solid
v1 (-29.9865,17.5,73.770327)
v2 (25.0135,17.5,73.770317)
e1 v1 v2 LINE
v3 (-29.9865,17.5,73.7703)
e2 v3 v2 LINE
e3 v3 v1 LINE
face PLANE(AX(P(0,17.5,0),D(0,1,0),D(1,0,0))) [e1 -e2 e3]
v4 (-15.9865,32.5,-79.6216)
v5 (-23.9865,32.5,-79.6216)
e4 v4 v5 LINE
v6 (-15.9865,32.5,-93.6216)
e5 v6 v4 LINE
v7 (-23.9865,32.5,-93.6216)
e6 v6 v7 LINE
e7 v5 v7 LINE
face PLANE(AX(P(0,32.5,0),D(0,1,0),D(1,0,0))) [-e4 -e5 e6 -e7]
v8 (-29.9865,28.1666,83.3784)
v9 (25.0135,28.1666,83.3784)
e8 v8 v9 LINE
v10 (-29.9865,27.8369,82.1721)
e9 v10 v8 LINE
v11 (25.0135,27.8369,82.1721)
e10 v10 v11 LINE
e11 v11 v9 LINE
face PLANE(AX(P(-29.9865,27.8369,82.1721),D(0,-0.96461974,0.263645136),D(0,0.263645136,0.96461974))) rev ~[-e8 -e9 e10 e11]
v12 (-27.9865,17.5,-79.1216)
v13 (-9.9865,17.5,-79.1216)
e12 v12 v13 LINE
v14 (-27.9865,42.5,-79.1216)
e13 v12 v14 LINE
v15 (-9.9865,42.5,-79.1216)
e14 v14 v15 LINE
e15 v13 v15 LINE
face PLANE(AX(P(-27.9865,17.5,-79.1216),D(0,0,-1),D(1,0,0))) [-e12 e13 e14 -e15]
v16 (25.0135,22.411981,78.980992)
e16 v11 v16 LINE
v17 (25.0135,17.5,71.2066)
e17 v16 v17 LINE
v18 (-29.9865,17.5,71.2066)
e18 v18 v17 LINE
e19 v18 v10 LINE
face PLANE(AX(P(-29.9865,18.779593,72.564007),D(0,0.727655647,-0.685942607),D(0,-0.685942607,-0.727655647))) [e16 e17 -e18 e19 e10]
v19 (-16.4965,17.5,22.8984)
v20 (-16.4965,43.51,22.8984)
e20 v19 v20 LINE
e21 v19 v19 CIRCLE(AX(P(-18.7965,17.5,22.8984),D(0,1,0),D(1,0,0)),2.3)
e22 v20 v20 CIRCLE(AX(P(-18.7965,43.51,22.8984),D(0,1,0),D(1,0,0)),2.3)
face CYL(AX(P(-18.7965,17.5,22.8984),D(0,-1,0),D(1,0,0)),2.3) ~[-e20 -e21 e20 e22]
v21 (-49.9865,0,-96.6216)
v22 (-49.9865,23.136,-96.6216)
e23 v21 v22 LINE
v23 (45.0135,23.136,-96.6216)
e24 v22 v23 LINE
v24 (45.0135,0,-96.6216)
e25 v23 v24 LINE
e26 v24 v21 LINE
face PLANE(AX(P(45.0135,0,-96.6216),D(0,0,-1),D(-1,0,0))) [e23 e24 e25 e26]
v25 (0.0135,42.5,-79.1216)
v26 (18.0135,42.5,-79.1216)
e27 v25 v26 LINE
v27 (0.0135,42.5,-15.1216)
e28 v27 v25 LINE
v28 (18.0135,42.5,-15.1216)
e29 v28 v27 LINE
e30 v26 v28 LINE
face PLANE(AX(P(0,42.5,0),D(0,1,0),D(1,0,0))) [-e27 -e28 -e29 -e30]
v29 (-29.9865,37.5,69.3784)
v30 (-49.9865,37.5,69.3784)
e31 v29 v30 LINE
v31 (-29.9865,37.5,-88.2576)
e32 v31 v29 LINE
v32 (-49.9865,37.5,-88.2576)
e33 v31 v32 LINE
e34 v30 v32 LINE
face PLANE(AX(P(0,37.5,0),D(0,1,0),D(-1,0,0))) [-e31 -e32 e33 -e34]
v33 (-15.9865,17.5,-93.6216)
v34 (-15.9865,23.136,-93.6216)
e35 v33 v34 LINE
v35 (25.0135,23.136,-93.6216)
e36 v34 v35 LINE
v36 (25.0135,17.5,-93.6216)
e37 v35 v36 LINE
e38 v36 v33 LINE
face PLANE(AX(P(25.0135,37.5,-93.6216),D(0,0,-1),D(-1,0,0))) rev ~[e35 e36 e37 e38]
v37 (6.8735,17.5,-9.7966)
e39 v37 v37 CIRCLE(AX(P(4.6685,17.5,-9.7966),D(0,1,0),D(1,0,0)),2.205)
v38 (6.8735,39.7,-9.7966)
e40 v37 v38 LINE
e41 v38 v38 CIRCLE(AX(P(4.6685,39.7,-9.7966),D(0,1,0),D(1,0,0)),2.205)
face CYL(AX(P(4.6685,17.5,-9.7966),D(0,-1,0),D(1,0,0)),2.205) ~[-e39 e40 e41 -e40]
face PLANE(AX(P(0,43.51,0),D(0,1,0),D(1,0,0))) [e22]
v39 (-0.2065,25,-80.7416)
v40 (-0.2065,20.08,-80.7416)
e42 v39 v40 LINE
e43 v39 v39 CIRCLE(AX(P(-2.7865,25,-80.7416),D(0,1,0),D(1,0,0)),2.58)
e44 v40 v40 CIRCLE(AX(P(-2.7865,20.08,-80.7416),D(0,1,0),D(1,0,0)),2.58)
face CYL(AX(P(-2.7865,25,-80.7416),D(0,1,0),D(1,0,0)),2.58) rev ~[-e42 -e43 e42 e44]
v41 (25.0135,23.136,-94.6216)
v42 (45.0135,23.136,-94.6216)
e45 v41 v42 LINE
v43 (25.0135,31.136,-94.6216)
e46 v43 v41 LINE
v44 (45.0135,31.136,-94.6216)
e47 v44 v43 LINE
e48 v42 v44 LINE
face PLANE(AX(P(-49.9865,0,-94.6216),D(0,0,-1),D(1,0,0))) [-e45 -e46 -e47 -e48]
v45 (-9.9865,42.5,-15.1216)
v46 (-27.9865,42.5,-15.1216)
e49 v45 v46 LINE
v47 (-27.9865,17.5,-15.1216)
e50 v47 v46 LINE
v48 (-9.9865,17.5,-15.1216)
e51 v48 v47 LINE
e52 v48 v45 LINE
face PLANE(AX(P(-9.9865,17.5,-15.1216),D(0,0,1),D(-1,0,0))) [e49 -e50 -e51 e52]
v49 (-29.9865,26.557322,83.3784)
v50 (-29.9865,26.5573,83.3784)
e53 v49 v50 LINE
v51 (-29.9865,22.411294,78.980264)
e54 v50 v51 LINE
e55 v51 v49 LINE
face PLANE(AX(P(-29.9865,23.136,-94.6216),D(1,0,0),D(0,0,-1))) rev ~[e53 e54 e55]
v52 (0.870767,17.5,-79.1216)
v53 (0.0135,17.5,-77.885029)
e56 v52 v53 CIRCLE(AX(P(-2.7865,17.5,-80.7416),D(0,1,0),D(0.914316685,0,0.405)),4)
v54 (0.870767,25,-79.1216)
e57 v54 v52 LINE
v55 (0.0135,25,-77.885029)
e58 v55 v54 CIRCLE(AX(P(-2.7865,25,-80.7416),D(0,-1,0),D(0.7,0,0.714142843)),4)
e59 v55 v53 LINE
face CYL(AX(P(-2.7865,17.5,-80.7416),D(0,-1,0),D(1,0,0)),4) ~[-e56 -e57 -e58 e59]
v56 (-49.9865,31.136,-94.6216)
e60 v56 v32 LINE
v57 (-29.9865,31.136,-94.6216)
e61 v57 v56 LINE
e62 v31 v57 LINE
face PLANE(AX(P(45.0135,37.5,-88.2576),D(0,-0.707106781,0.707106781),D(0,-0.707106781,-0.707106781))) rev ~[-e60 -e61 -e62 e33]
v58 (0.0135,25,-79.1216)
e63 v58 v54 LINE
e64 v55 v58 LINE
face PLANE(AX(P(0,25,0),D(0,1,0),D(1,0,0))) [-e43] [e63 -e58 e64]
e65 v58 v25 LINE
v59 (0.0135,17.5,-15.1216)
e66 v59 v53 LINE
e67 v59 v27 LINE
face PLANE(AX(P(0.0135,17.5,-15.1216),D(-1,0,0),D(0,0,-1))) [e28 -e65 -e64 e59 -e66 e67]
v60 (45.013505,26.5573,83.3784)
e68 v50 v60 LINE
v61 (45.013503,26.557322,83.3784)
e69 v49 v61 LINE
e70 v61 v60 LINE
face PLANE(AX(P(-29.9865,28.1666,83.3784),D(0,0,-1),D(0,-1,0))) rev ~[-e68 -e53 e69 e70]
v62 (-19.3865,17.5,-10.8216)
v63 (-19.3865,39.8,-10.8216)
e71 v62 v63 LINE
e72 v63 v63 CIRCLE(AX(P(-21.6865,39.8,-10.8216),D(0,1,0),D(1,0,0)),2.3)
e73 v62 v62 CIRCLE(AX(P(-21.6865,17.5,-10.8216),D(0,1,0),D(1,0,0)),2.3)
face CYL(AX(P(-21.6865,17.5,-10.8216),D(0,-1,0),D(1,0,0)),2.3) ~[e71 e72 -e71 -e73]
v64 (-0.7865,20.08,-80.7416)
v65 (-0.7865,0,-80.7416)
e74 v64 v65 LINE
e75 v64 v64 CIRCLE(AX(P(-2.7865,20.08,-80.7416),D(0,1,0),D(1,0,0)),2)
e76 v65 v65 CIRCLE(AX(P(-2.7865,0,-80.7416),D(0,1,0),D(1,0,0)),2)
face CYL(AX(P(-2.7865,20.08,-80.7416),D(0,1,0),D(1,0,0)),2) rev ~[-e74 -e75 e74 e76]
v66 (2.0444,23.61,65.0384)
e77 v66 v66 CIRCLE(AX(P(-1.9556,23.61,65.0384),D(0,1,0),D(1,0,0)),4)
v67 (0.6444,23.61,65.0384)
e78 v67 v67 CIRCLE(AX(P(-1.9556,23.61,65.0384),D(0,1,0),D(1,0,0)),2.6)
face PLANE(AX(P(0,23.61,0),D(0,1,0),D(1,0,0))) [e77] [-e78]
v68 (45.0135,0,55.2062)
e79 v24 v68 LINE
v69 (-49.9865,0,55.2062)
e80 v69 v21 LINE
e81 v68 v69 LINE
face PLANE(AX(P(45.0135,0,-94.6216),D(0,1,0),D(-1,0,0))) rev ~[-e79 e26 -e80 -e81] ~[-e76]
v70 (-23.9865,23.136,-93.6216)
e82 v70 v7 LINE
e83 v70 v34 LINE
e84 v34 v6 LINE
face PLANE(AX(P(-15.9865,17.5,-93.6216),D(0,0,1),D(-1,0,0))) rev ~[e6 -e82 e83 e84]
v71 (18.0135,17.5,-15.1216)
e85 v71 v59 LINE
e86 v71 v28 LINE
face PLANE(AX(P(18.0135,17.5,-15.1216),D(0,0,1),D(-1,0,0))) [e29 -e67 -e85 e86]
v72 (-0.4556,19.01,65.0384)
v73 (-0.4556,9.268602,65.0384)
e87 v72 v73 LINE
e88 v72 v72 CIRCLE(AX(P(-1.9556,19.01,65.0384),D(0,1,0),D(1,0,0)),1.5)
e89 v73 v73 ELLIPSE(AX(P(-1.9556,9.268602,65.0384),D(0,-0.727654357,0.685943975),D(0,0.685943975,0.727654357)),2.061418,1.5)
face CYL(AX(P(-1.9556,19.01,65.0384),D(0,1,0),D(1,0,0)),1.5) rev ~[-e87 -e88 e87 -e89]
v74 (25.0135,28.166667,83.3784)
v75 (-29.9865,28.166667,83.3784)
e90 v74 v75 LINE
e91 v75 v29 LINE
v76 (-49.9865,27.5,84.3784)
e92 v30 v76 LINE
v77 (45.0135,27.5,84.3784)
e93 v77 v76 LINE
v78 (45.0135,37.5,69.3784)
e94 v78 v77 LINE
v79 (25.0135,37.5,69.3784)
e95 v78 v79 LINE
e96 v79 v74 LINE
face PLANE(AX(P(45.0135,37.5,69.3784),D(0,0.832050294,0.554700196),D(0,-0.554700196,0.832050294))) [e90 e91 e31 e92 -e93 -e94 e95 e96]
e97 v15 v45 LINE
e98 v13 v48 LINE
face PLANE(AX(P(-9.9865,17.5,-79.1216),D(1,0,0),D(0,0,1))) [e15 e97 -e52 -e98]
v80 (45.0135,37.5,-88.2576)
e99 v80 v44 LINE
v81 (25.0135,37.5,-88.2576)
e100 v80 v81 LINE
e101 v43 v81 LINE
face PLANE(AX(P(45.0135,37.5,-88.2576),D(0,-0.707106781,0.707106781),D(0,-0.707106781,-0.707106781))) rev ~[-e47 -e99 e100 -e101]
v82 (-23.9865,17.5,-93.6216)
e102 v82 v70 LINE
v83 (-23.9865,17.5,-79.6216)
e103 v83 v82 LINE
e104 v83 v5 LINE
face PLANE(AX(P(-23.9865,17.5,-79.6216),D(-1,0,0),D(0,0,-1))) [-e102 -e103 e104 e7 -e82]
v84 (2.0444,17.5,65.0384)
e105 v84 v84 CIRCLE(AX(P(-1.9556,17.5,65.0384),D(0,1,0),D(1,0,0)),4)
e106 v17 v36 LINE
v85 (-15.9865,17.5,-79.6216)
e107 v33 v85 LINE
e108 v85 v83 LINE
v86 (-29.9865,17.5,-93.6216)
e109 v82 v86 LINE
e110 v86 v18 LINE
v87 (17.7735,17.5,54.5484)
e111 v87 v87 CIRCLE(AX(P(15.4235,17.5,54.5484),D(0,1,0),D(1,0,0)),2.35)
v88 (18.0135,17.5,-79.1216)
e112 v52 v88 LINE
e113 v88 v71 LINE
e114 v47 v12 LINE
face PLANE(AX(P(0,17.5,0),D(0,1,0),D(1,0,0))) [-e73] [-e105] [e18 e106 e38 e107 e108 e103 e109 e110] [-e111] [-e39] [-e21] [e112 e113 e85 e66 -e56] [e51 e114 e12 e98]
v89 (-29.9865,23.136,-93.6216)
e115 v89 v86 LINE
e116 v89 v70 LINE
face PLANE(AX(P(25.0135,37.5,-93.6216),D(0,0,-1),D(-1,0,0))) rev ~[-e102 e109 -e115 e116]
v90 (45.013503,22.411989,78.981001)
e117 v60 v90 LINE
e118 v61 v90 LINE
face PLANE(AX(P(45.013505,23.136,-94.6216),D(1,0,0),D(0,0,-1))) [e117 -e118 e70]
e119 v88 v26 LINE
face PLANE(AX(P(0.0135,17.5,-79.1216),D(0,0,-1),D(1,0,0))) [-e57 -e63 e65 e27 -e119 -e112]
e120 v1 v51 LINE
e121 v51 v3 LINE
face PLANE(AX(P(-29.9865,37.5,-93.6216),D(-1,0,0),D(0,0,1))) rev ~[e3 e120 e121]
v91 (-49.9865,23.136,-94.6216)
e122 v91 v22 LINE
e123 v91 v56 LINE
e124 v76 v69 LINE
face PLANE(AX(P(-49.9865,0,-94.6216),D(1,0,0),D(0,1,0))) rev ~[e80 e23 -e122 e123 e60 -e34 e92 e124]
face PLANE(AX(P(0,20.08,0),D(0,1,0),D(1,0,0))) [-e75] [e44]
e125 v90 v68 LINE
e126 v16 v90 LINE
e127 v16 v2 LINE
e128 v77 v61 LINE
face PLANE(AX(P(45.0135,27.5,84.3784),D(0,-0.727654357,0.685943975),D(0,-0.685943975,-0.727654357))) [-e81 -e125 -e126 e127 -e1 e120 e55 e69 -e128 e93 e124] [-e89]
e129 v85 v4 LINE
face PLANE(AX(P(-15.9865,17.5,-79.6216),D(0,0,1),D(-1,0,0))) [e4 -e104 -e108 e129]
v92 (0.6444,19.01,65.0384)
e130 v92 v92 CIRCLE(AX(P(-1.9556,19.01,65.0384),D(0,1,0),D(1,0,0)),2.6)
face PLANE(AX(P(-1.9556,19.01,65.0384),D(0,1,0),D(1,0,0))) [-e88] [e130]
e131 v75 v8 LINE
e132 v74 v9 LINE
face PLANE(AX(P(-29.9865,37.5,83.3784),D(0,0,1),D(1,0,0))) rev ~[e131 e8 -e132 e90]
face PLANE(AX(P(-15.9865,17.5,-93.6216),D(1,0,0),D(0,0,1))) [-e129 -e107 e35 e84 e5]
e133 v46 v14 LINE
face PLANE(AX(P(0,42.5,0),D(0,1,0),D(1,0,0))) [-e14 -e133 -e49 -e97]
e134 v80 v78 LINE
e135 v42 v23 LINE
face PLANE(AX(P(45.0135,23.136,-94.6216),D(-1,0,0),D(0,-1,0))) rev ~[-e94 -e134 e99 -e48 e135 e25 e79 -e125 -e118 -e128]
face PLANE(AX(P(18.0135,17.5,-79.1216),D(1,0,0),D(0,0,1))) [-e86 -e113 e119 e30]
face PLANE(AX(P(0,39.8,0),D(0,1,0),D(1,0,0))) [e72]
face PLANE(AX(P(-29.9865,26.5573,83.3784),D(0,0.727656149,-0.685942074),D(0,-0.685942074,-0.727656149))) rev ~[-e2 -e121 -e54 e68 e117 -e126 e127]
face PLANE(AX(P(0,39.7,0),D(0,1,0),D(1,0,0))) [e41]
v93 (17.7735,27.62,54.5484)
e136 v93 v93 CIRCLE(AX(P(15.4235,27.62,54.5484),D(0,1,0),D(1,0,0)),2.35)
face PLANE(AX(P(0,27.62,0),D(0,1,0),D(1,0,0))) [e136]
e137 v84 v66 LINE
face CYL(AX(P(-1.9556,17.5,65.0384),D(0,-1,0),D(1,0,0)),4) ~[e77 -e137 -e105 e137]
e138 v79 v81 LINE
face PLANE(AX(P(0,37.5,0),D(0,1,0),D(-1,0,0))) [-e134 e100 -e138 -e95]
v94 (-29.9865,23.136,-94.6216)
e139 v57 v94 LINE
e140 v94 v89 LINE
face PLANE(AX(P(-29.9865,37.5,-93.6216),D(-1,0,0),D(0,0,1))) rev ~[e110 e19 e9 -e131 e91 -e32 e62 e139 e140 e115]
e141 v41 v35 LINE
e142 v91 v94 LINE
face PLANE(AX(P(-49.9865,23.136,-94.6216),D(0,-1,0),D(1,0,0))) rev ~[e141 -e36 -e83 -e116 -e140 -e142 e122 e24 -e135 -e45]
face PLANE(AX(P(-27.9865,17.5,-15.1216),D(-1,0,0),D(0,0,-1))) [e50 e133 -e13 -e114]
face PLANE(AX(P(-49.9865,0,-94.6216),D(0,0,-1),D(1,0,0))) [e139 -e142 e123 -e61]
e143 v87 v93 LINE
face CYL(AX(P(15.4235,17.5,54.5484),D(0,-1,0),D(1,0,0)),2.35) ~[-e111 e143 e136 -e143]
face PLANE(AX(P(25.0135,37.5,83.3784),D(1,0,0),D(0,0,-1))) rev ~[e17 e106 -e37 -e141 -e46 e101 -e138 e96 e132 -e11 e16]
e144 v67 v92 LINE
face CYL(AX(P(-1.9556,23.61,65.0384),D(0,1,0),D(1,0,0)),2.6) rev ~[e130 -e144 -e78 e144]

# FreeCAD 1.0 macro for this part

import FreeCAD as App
import Part
import Sketcher
Q = App.Units.Quantity

doc = App.newDocument("Part")
params = doc.addObject("Spreadsheet::Sheet", "Params")
for row, (alias, value) in enumerate([
    ("sketch1_width", "95 mm"),
    ("sketch1_height", "179 mm"),
    ("pad1_length", "37.5 mm"),
    ("sketch2_width", "55 mm"),
    ("sketch2_height", "177 mm"),
    ("pocket1_length", "20 mm"),
    ("sketch4_width", "95 mm"),
    ("pad2_length", "2 mm"),
    ("sketch5_width", "55 mm"),
    ("sketch5_height", "9 mm"),
    ("pocket3_length", "1 mm"),
    ("sketch6_width", "8 mm"),
    ("sketch6_height", "14 mm"),
    ("pad3_length", "15 mm"),
    ("sketch7_width", "10 mm"),
    ("sketch7_height", "15 mm"),
    ("sketch8_width", "18 mm"),
    ("sketch8_height", "64 mm"),
    ("pad4_length", "25 mm"),
    ("sketch9_width", "18 mm"),
    ("sketch9_height", "64 mm"),
    ("pad5_length", "25 mm"),
    ("sketch10_width", "27.5 mm"),
    ("sketch12_diameter", "4.6 mm"),
    ("pad7_length", "26.01 mm"),
    ("sketch13_diameter", "4.6 mm"),
    ("pad8_length", "22.3 mm"),
    ("sketch14_diameter", "4.41 mm"),
    ("pad9_length", "22.2 mm"),
    ("sketch15_diameter", "4.7 mm"),
    ("pad10_length", "10.12 mm"),
    ("sketch16_diameter", "8 mm"),
    ("pad11_length", "6.11 mm"),
    ("sketch17_diameter", "5.2 mm"),
    ("pocket6_length", "4.6 mm"),
    ("sketch18_diameter", "3 mm"),
    ("sketch19_diameter", "8 mm"),
    ("pad12_length", "7.5 mm"),
    ("sketch20_diameter", "5.16 mm"),
    ("pocket8_length", "4.92 mm"),
    ("sketch21_diameter", "4 mm"),
], start=1):
    params.set(f"A{row}", alias)
    params.set(f"B{row}", "=" + value)
    params.setAlias(f"B{row}", alias)

body = doc.addObject("PartDesign::Body", "Body")

# Sketch on XZ plane
sketch1 = body.newObject("Sketcher::SketchObject", "Sketch")
sketch1.AttachmentSupport = (doc.getObject("XZ_Plane"), [""])
sketch1.MapMode = "FlatFace"
sketch1.addGeometry([
    Part.LineSegment(App.Vector(-49.9865, 84.3784, 0), App.Vector(45.0135, 84.3784, 0)),
    Part.LineSegment(App.Vector(45.0135, 84.3784, 0), App.Vector(45.0135, -94.6216, 0)),
    Part.LineSegment(App.Vector(45.0135, -94.6216, 0), App.Vector(-49.9865, -94.6216, 0)),
    Part.LineSegment(App.Vector(-49.9865, -94.6216, 0), App.Vector(-49.9865, 84.3784, 0)),
], False)
sketch1.addConstraint([
    Sketcher.Constraint("Coincident", 0, 2, 1, 1),
    Sketcher.Constraint("Coincident", 1, 2, 2, 1),
    Sketcher.Constraint("Coincident", 2, 2, 3, 1),
    Sketcher.Constraint("Coincident", 3, 2, 0, 1),
    Sketcher.Constraint("Horizontal", 0),
    Sketcher.Constraint("Vertical", 1),
    Sketcher.Constraint("Horizontal", 2),
    Sketcher.Constraint("Vertical", 3),
    Sketcher.Constraint("DistanceX", 0, 1, 0, 2, 95.0),
    Sketcher.Constraint("DistanceY", 1, 2, 1, 1, 179.0),
    Sketcher.Constraint("DistanceX", -1, 1, 0, 2, 45.0135),
    Sketcher.Constraint("DistanceY", -1, 1, 0, 2, 84.3784),
])
sketch1.setExpression("Constraints[8]", "Params.sketch1_width")
sketch1.setExpression("Constraints[9]", "Params.sketch1_height")
pad1 = body.newObject("PartDesign::Pad", "Pad")
pad1.Profile = sketch1
pad1.setExpression("Length", "Params.pad1_length")
pad1.Reversed = True

# Sketch on XZ plane
sketch2 = body.newObject("Sketcher::SketchObject", "Sketch001")
sketch2.AttachmentSupport = (doc.getObject("XZ_Plane"), [""])
sketch2.MapMode = "FlatFace"
sketch2.AttachmentOffset = App.Placement(App.Vector(0, 0, -37.5), App.Rotation())
sketch2.addGeometry([
    Part.LineSegment(App.Vector(-29.9865, -93.6216, 0), App.Vector(-29.9865, 83.3784, 0)),
    Part.LineSegment(App.Vector(-29.9865, 83.3784, 0), App.Vector(25.0135, 83.3784, 0)),
    Part.LineSegment(App.Vector(25.0135, 83.3784, 0), App.Vector(25.0135, -93.6216, 0)),
    Part.LineSegment(App.Vector(25.0135, -93.6216, 0), App.Vector(-29.9865, -93.6216, 0)),
], False)
sketch2.addConstraint([
    Sketcher.Constraint("Coincident", 0, 2, 1, 1),
    Sketcher.Constraint("Coincident", 1, 2, 2, 1),
    Sketcher.Constraint("Coincident", 2, 2, 3, 1),
    Sketcher.Constraint("Coincident", 3, 2, 0, 1),
    Sketcher.Constraint("Vertical", 0),
    Sketcher.Constraint("Horizontal", 1),
    Sketcher.Constraint("Vertical", 2),
    Sketcher.Constraint("Horizontal", 3),
    Sketcher.Constraint("DistanceX", 1, 1, 1, 2, 55.0),
    Sketcher.Constraint("DistanceY", 0, 1, 0, 2, 177.0),
    Sketcher.Constraint("DistanceX", 0, 2, -1, 1, 29.9865),
    Sketcher.Constraint("DistanceY", -1, 1, 0, 2, 83.3784),
])
sketch2.setExpression("Constraints[8]", "Params.sketch2_width")
sketch2.setExpression("Constraints[9]", "Params.sketch2_height")
pocket1 = body.newObject("PartDesign::Pocket", "Pocket")
pocket1.Profile = sketch2
pocket1.setExpression("Length", "Params.pocket1_length")
pocket1.Reversed = True

# Sketch on YZ plane
sketch3 = body.newObject("Sketcher::SketchObject", "Sketch002")
sketch3.AttachmentSupport = (doc.getObject("YZ_Plane"), [""])
sketch3.MapMode = "FlatFace"
sketch3.AttachmentOffset = App.Placement(App.Vector(0, 0, 45.0135), App.Rotation())
sketch3.addGeometry([
    Part.LineSegment(App.Vector(31.136, -94.6216, 0), App.Vector(37.5, -94.6216, 0)),
    Part.LineSegment(App.Vector(37.5, -94.6216, 0), App.Vector(37.5, -88.2576, 0)),
    Part.LineSegment(App.Vector(37.5, -88.2576, 0), App.Vector(31.136, -94.6216, 0)),
], False)
sketch3.addConstraint([
    Sketcher.Constraint("Coincident", 0, 2, 1, 1),
    Sketcher.Constraint("Coincident", 1, 2, 2, 1),
    Sketcher.Constraint("Coincident", 2, 2, 0, 1),
    Sketcher.Constraint("Horizontal", 0),
    Sketcher.Constraint("Vertical", 1),
    Sketcher.Constraint("Equal", 0, 1),
    Sketcher.Constraint("DistanceX", 0, 1, 0, 2, 6.364),
    Sketcher.Constraint("DistanceX", -1, 1, 0, 2, 37.5),
    Sketcher.Constraint("DistanceY", 0, 2, -1, 1, 94.6216),
])
pocket2 = body.newObject("PartDesign::Pocket", "Pocket001")
pocket2.Profile = sketch3
pocket2.Type = "ThroughAll"

# Sketch on XY plane
sketch4 = body.newObject("Sketcher::SketchObject", "Sketch003")
sketch4.AttachmentSupport = (doc.getObject("XY_Plane"), [""])
sketch4.MapMode = "FlatFace"
sketch4.AttachmentOffset = App.Placement(App.Vector(0, 0, -94.6216), App.Rotation())
sketch4.addGeometry([
    Part.LineSegment(App.Vector(45.0135, 0, 0), App.Vector(-49.9865, 0, 0)),
    Part.LineSegment(App.Vector(-49.9865, 0, 0), App.Vector(-49.9865, 23.136, 0)),
    Part.LineSegment(App.Vector(-49.9865, 23.136, 0), App.Vector(45.0135, 23.136, 0)),
    Part.LineSegment(App.Vector(45.0135, 23.136, 0), App.Vector(45.0135, 0, 0)),
], False)
sketch4.addConstraint([
    Sketcher.Constraint("Coincident", 0, 2, 1, 1),
    Sketcher.Constraint("Coincident", 1, 2, 2, 1),
    Sketcher.Constraint("Coincident", 2, 2, 3, 1),
    Sketcher.Constraint("Coincident", 3, 2, 0, 1),
    Sketcher.Constraint("Horizontal", 0),
    Sketcher.Constraint("Vertical", 1),
    Sketcher.Constraint("Horizontal", 2),
    Sketcher.Constraint("Vertical", 3),
    Sketcher.Constraint("PointOnObject", 0, 2, -1),
    Sketcher.Constraint("DistanceX", 0, 2, 0, 1, 95.0),
    Sketcher.Constraint("DistanceY", 1, 1, 1, 2, 23.136),
    Sketcher.Constraint("DistanceX", 0, 2, -1, 1, 49.9865),
])
sketch4.setExpression("Constraints[9]", "Params.sketch4_width")
pad2 = body.newObject("PartDesign::Pad", "Pad001")
pad2.Profile = sketch4
pad2.setExpression("Length", "Params.pad2_length")
pad2.Reversed = True

# Sketch on XY plane
sketch5 = body.newObject("Sketcher::SketchObject", "Sketch004")
sketch5.AttachmentSupport = (doc.getObject("XY_Plane"), [""])
sketch5.MapMode = "FlatFace"
sketch5.AttachmentOffset = App.Placement(App.Vector(0, 0, -94.6216), App.Rotation())
sketch5.addGeometry([
    Part.LineSegment(App.Vector(-29.9865, 32.136, 0), App.Vector(25.0135, 32.136, 0)),
    Part.LineSegment(App.Vector(25.0135, 32.136, 0), App.Vector(25.0135, 23.136, 0)),
    Part.LineSegment(App.Vector(25.0135, 23.136, 0), App.Vector(-29.9865, 23.136, 0)),
    Part.LineSegment(App.Vector(-29.9865, 23.136, 0), App.Vector(-29.9865, 32.136, 0)),
], False)
sketch5.addConstraint([
    Sketcher.Constraint("Coincident", 0, 2, 1, 1),
    Sketcher.Constraint("Coincident", 1, 2, 2, 1),
    Sketcher.Constraint("Coincident", 2, 2, 3, 1),
    Sketcher.Constraint("Coincident", 3, 2, 0, 1),
    Sketcher.Constraint("Horizontal", 0),
    Sketcher.Constraint("Vertical", 1),
    Sketcher.Constraint("Horizontal", 2),
    Sketcher.Constraint("Vertical", 3),
    Sketcher.Constraint("DistanceX", 0, 1, 0, 2, 55.0),
    Sketcher.Constraint("DistanceY", 1, 2, 1, 1, 9.0),
    Sketcher.Constraint("DistanceY", -1, 1, 0, 2, 32.136),
    Sketcher.Constraint("DistanceX", -1, 1, 0, 2, 25.0135),
])
sketch5.setExpression("Constraints[8]", "Params.sketch5_width")
sketch5.setExpression("Constraints[9]", "Params.sketch5_height")
pocket3 = body.newObject("PartDesign::Pocket", "Pocket002")
pocket3.Profile = sketch5
pocket3.setExpression("Length", "Params.pocket3_length")
pocket3.Reversed = True

# Sketch on XZ plane
sketch6 = body.newObject("Sketcher::SketchObject", "Sketch005")
sketch6.AttachmentSupport = (doc.getObject("XZ_Plane"), [""])
sketch6.MapMode = "FlatFace"
sketch6.AttachmentOffset = App.Placement(App.Vector(0, 0, -17.5), App.Rotation())
sketch6.addGeometry([
    Part.LineSegment(App.Vector(-15.9865, -79.6216, 0), App.Vector(-15.9865, -93.6216, 0)),
    Part.LineSegment(App.Vector(-15.9865, -93.6216, 0), App.Vector(-23.9865, -93.6216, 0)),
    Part.LineSegment(App.Vector(-23.9865, -93.6216, 0), App.Vector(-23.9865, -79.6216, 0)),
    Part.LineSegment(App.Vector(-23.9865, -79.6216, 0), App.Vector(-15.9865, -79.6216, 0)),
], False)
sketch6.addConstraint([
    Sketcher.Constraint("Coincident", 0, 2, 1, 1),
    Sketcher.Constraint("Coincident", 1, 2, 2, 1),
    Sketcher.Constraint("Coincident", 2, 2, 3, 1),
    Sketcher.Constraint("Coincident", 3, 2, 0, 1),
    Sketcher.Constraint("Vertical", 0),
    Sketcher.Constraint("Horizontal", 1),
    Sketcher.Constraint("Vertical", 2),
    Sketcher.Constraint("Horizontal", 3),
    Sketcher.Constraint("DistanceX", 1, 2, 1, 1, 8.0),
    Sketcher.Constraint("DistanceY", 0, 2, 0, 1, 14.0),
    Sketcher.Constraint("DistanceX", 0, 2, -1, 1, 15.9865),
    Sketcher.Constraint("DistanceY", 0, 2, -1, 1, 93.6216),
])
sketch6.setExpression("Constraints[8]", "Params.sketch6_width")
sketch6.setExpression("Constraints[9]", "Params.sketch6_height")
pad3 = body.newObject("PartDesign::Pad", "Pad002")
pad3.Profile = sketch6
pad3.setExpression("Length", "Params.pad3_length")
pad3.Reversed = True

# Sketch on YZ plane
sketch7 = body.newObject("Sketcher::SketchObject", "Sketch006")
sketch7.AttachmentSupport = (doc.getObject("YZ_Plane"), [""])
sketch7.MapMode = "FlatFace"
sketch7.AttachmentOffset = App.Placement(App.Vector(0, 0, 45.0135), App.Rotation())
sketch7.addGeometry([
    Part.LineSegment(App.Vector(37.5, 84.3784, 0), App.Vector(27.5, 84.3784, 0)),
    Part.LineSegment(App.Vector(27.5, 84.3784, 0), App.Vector(37.5, 69.3784, 0)),
    Part.LineSegment(App.Vector(37.5, 69.3784, 0), App.Vector(37.5, 84.3784, 0)),
], False)
sketch7.addConstraint([
    Sketcher.Constraint("Coincident", 0, 2, 1, 1),
    Sketcher.Constraint("Coincident", 1, 2, 2, 1),
    Sketcher.Constraint("Coincident", 2, 2, 0, 1),
    Sketcher.Constraint("Horizontal", 0),
    Sketcher.Constraint("Vertical", 2),
    Sketcher.Constraint("DistanceX", 0, 2, 0, 1, 10.0),
    Sketcher.Constraint("DistanceY", 2, 1, 2, 2, 15.0),
    Sketcher.Constraint("DistanceX", -1, 1, 0, 2, 27.5),
    Sketcher.Constraint("DistanceY", -1, 1, 0, 2, 84.3784),
])
sketch7.setExpression("Constraints[5]", "Params.sketch7_width")
sketch7.setExpression("Constraints[6]", "Params.sketch7_height")
pocket4 = body.newObject("PartDesign::Pocket", "Pocket003")
pocket4.Profile = sketch7
pocket4.Type = "ThroughAll"

# Sketch on XZ plane
sketch8 = body.newObject("Sketcher::SketchObject", "Sketch007")
sketch8.AttachmentSupport = (doc.getObject("XZ_Plane"), [""])
sketch8.MapMode = "FlatFace"
sketch8.AttachmentOffset = App.Placement(App.Vector(0, 0, -17.5), App.Rotation())
sketch8.addGeometry([
    Part.LineSegment(App.Vector(-9.9865, -79.1216, 0), App.Vector(-27.9865, -79.1216, 0)),
    Part.LineSegment(App.Vector(-27.9865, -79.1216, 0), App.Vector(-27.9865, -15.1216, 0)),
    Part.LineSegment(App.Vector(-27.9865, -15.1216, 0), App.Vector(-9.9865, -15.1216, 0)),
    Part.LineSegment(App.Vector(-9.9865, -15.1216, 0), App.Vector(-9.9865, -79.1216, 0)),
], False)
sketch8.addConstraint([
    Sketcher.Constraint("Coincident", 0, 2, 1, 1),
    Sketcher.Constraint("Coincident", 1, 2, 2, 1),
    Sketcher.Constraint("Coincident", 2, 2, 3, 1),
    Sketcher.Constraint("Coincident", 3, 2, 0, 1),
    Sketcher.Constraint("Horizontal", 0),
    Sketcher.Constraint("Vertical", 1),
    Sketcher.Constraint("Horizontal", 2),
    Sketcher.Constraint("Vertical", 3),
    Sketcher.Constraint("DistanceX", 0, 2, 0, 1, 18.0),
    Sketcher.Constraint("DistanceY", 1, 1, 1, 2, 64.0),
    Sketcher.Constraint("DistanceX", 0, 2, -1, 1, 27.9865),
    Sketcher.Constraint("DistanceY", 0, 2, -1, 1, 79.1216),
])
sketch8.setExpression("Constraints[8]", "Params.sketch8_width")
sketch8.setExpression("Constraints[9]", "Params.sketch8_height")
pad4 = body.newObject("PartDesign::Pad", "Pad003")
pad4.Profile = sketch8
pad4.setExpression("Length", "Params.pad4_length")
pad4.Reversed = True

# Sketch on XZ plane
sketch9 = body.newObject("Sketcher::SketchObject", "Sketch008")
sketch9.AttachmentSupport = (doc.getObject("XZ_Plane"), [""])
sketch9.MapMode = "FlatFace"
sketch9.AttachmentOffset = App.Placement(App.Vector(0, 0, -17.5), App.Rotation())
sketch9.addGeometry([
    Part.LineSegment(App.Vector(18.0135, -79.1216, 0), App.Vector(0.0135, -79.1216, 0)),
    Part.LineSegment(App.Vector(0.0135, -79.1216, 0), App.Vector(0.0135, -15.1216, 0)),
    Part.LineSegment(App.Vector(0.0135, -15.1216, 0), App.Vector(18.0135, -15.1216, 0)),
    Part.LineSegment(App.Vector(18.0135, -15.1216, 0), App.Vector(18.0135, -79.1216, 0)),
], False)
sketch9.addConstraint([
    Sketcher.Constraint("Coincident", 0, 2, 1, 1),
    Sketcher.Constraint("Coincident", 1, 2, 2, 1),
    Sketcher.Constraint("Coincident", 2, 2, 3, 1),
    Sketcher.Constraint("Coincident", 3, 2, 0, 1),
    Sketcher.Constraint("Horizontal", 0),
    Sketcher.Constraint("Vertical", 1),
    Sketcher.Constraint("Horizontal", 2),
    Sketcher.Constraint("Vertical", 3),
    Sketcher.Constraint("DistanceX", 0, 2, 0, 1, 18.0),
    Sketcher.Constraint("DistanceY", 1, 1, 1, 2, 64.0),
    Sketcher.Constraint("DistanceX", -1, 1, 0, 2, 0.0135),
    Sketcher.Constraint("DistanceY", 0, 2, -1, 1, 79.1216),
])
sketch9.setExpression("Constraints[8]", "Params.sketch9_width")
sketch9.setExpression("Constraints[9]", "Params.sketch9_height")
pad5 = body.newObject("PartDesign::Pad", "Pad004")
pad5.Profile = sketch9
pad5.setExpression("Length", "Params.pad5_length")
pad5.Reversed = True

# Sketch on YZ plane
sketch10 = body.newObject("Sketcher::SketchObject", "Sketch009")
sketch10.AttachmentSupport = (doc.getObject("YZ_Plane"), [""])
sketch10.MapMode = "FlatFace"
sketch10.AttachmentOffset = App.Placement(App.Vector(0, 0, 45.0135), App.Rotation())
sketch10.addGeometry([
    Part.LineSegment(App.Vector(27.5, 84.3784, 0), App.Vector(0, 84.3784, 0)),
    Part.LineSegment(App.Vector(0, 84.3784, 0), App.Vector(0, 55.2062, 0)),
    Part.LineSegment(App.Vector(0, 55.2062, 0), App.Vector(27.5, 84.3784, 0)),
], False)
sketch10.addConstraint([
    Sketcher.Constraint("Coincident", 0, 2, 1, 1),
    Sketcher.Constraint("Coincident", 1, 2, 2, 1),
    Sketcher.Constraint("Coincident", 2, 2, 0, 1),
    Sketcher.Constraint("Horizontal", 0),
    Sketcher.Constraint("Vertical", 1),
    Sketcher.Constraint("PointOnObject", 0, 2, -2),
    Sketcher.Constraint("DistanceX", 0, 2, 0, 1, 27.5),
    Sketcher.Constraint("Angle", 2, Q("46.69 deg")),
    Sketcher.Constraint("DistanceY", -1, 1, 0, 2, 84.3784),
])
sketch10.setExpression("Constraints[6]", "Params.sketch10_width")
pocket5 = body.newObject("PartDesign::Pocket", "Pocket004")
pocket5.Profile = sketch10
pocket5.Type = "ThroughAll"

# Sketch on YZ plane
sketch11 = body.newObject("Sketcher::SketchObject", "Sketch010")
sketch11.AttachmentSupport = (doc.getObject("YZ_Plane"), [""])
sketch11.MapMode = "FlatFace"
sketch11.AttachmentOffset = App.Placement(App.Vector(0, 0, -29.9865), App.Rotation())
sketch11.addGeometry([
    Part.LineSegment(App.Vector(17.5, 71.2066, 0), App.Vector(27.8369, 82.1721, 0)),  # 0
    Part.LineSegment(App.Vector(27.8369, 82.1721, 0), App.Vector(28.1666, 83.3784, 0)),  # 1
    Part.LineSegment(App.Vector(28.1666, 83.3784, 0), App.Vector(26.5573, 83.3784, 0)),  # 2
    Part.LineSegment(App.Vector(26.5573, 83.3784, 0), App.Vector(17.5, 73.7703, 0)),  # 3
    Part.LineSegment(App.Vector(17.5, 73.7703, 0), App.Vector(17.5, 71.2066, 0)),  # 4
], False)
sketch11.addConstraint([
    Sketcher.Constraint("Coincident", 0, 2, 1, 1),
    Sketcher.Constraint("Coincident", 1, 2, 2, 1),
    Sketcher.Constraint("Coincident", 2, 2, 3, 1),
    Sketcher.Constraint("Coincident", 3, 2, 4, 1),
    Sketcher.Constraint("Coincident", 4, 2, 0, 1),
    Sketcher.Constraint("Horizontal", 2),
    Sketcher.Constraint("Vertical", 4),
    Sketcher.Constraint("Parallel", 0, 3),
    Sketcher.Constraint("DistanceX", -1, 1, 3, 2, 17.5),
    Sketcher.Constraint("Angle", 0, Q("46.6902 deg")),
    Sketcher.Constraint("DistanceX", 2, 2, 2, 1, 1.6093),
    Sketcher.Constraint("DistanceY", 4, 2, 4, 1, 2.5637),
    Sketcher.Constraint("DistanceX", -1, 1, 0, 2, 27.837),
    Sketcher.Constraint("DistanceY", -1, 1, 0, 2, 82.172),
    Sketcher.Constraint("DistanceY", 3, 2, 2, 2, 9.608),
])
pad6 = body.newObject("PartDesign::Pad", "Pad005")
pad6.Profile = sketch11
pad6.Type = "UpToFirst"

# Sketch on XZ plane
sketch12 = body.newObject("Sketcher::SketchObject", "Sketch011")
sketch12.AttachmentSupport = (doc.getObject("XZ_Plane"), [""])
sketch12.MapMode = "FlatFace"
sketch12.AttachmentOffset = App.Placement(App.Vector(0, 0, -17.5), App.Rotation())
sketch12.addGeometry(Part.Circle(App.Vector(-18.7965, 22.8984, 0), App.Vector(0, 0, 1), 2.3), False)
sketch12.addConstraint([
    Sketcher.Constraint("Diameter", 0, 4.6),
    Sketcher.Constraint("DistanceX", 0, 3, -1, 1, 18.7965),
    Sketcher.Constraint("DistanceY", -1, 1, 0, 3, 22.8984),
])
sketch12.setExpression("Constraints[0]", "Params.sketch12_diameter")
pad7 = body.newObject("PartDesign::Pad", "Pad006")
pad7.Profile = sketch12
pad7.setExpression("Length", "Params.pad7_length")
pad7.Reversed = True

# Sketch on XZ plane
sketch13 = body.newObject("Sketcher::SketchObject", "Sketch012")
sketch13.AttachmentSupport = (doc.getObject("XZ_Plane"), [""])
sketch13.MapMode = "FlatFace"
sketch13.AttachmentOffset = App.Placement(App.Vector(0, 0, -17.5), App.Rotation())
sketch13.addGeometry(Part.Circle(App.Vector(-21.6865, -10.8216, 0), App.Vector(0, 0, 1), 2.3), False)
sketch13.addConstraint([
    Sketcher.Constraint("Diameter", 0, 4.6),
    Sketcher.Constraint("DistanceX", 0, 3, -1, 1, 21.6865),
    Sketcher.Constraint("DistanceY", 0, 3, -1, 1, 10.8216),
])
sketch13.setExpression("Constraints[0]", "Params.sketch13_diameter")
pad8 = body.newObject("PartDesign::Pad", "Pad007")
pad8.Profile = sketch13
pad8.setExpression("Length", "Params.pad8_length")
pad8.Reversed = True

# Sketch on XZ plane
sketch14 = body.newObject("Sketcher::SketchObject", "Sketch013")
sketch14.AttachmentSupport = (doc.getObject("XZ_Plane"), [""])
sketch14.MapMode = "FlatFace"
sketch14.AttachmentOffset = App.Placement(App.Vector(0, 0, -17.5), App.Rotation())
sketch14.addGeometry(Part.Circle(App.Vector(4.6685, -9.7966, 0), App.Vector(0, 0, 1), 2.205), False)
sketch14.addConstraint([
    Sketcher.Constraint("Diameter", 0, 4.41),
    Sketcher.Constraint("DistanceX", -1, 1, 0, 3, 4.6685),
    Sketcher.Constraint("DistanceY", 0, 3, -1, 1, 9.7966),
])
sketch14.setExpression("Constraints[0]", "Params.sketch14_diameter")
pad9 = body.newObject("PartDesign::Pad", "Pad008")
pad9.Profile = sketch14
pad9.setExpression("Length", "Params.pad9_length")
pad9.Reversed = True

# Sketch on XZ plane
sketch15 = body.newObject("Sketcher::SketchObject", "Sketch014")
sketch15.AttachmentSupport = (doc.getObject("XZ_Plane"), [""])
sketch15.MapMode = "FlatFace"
sketch15.AttachmentOffset = App.Placement(App.Vector(0, 0, -17.5), App.Rotation())
sketch15.addGeometry(Part.Circle(App.Vector(15.4235, 54.5484, 0), App.Vector(0, 0, 1), 2.35), False)
sketch15.addConstraint([
    Sketcher.Constraint("Diameter", 0, 4.7),
    Sketcher.Constraint("DistanceX", -1, 1, 0, 3, 15.4235),
    Sketcher.Constraint("DistanceY", -1, 1, 0, 3, 54.5484),
])
sketch15.setExpression("Constraints[0]", "Params.sketch15_diameter")
pad10 = body.newObject("PartDesign::Pad", "Pad009")
pad10.Profile = sketch15
pad10.setExpression("Length", "Params.pad10_length")
pad10.Reversed = True

# Sketch on XZ plane
sketch16 = body.newObject("Sketcher::SketchObject", "Sketch015")
sketch16.AttachmentSupport = (doc.getObject("XZ_Plane"), [""])
sketch16.MapMode = "FlatFace"
sketch16.AttachmentOffset = App.Placement(App.Vector(0, 0, -17.5), App.Rotation())
sketch16.addGeometry(Part.Circle(App.Vector(-1.9556, 65.0384, 0), App.Vector(0, 0, 1), 4), False)
sketch16.addConstraint([
    Sketcher.Constraint("Diameter", 0, 8.0),
    Sketcher.Constraint("DistanceX", 0, 3, -1, 1, 1.9556),
    Sketcher.Constraint("DistanceY", -1, 1, 0, 3, 65.0384),
])
sketch16.setExpression("Constraints[0]", "Params.sketch16_diameter")
pad11 = body.newObject("PartDesign::Pad", "Pad010")
pad11.Profile = sketch16
pad11.setExpression("Length", "Params.pad11_length")
pad11.Reversed = True

# Sketch on XZ plane
sketch17 = body.newObject("Sketcher::SketchObject", "Sketch016")
sketch17.AttachmentSupport = (doc.getObject("XZ_Plane"), [""])
sketch17.MapMode = "FlatFace"
sketch17.AttachmentOffset = App.Placement(App.Vector(0, 0, -23.61), App.Rotation())
sketch17.addGeometry(Part.Circle(App.Vector(-1.9556, 65.0384, 0), App.Vector(0, 0, 1), 2.6), False)
sketch17.addConstraint([
    Sketcher.Constraint("Diameter", 0, 5.2),
    Sketcher.Constraint("DistanceX", 0, 3, -1, 1, 1.9556),
    Sketcher.Constraint("DistanceY", -1, 1, 0, 3, 65.0384),
])
sketch17.setExpression("Constraints[0]", "Params.sketch17_diameter")
pocket6 = body.newObject("PartDesign::Pocket", "Pocket005")
pocket6.Profile = sketch17
pocket6.setExpression("Length", "Params.pocket6_length")
pocket6.Reversed = True

# Sketch on XZ plane
sketch18 = body.newObject("Sketcher::SketchObject", "Sketch017")
sketch18.AttachmentSupport = (doc.getObject("XZ_Plane"), [""])
sketch18.MapMode = "FlatFace"
sketch18.AttachmentOffset = App.Placement(App.Vector(0, 0, -19.01), App.Rotation())
sketch18.addGeometry(Part.Circle(App.Vector(-1.9556, 65.0384, 0), App.Vector(0, 0, 1), 1.5), False)
sketch18.addConstraint([
    Sketcher.Constraint("Diameter", 0, 3.0),
    Sketcher.Constraint("DistanceX", 0, 3, -1, 1, 1.9556),
    Sketcher.Constraint("DistanceY", -1, 1, 0, 3, 65.0384),
])
sketch18.setExpression("Constraints[0]", "Params.sketch18_diameter")
pocket7 = body.newObject("PartDesign::Pocket", "Pocket006")
pocket7.Profile = sketch18
pocket7.Type = "ThroughAll"
pocket7.Reversed = True

# Sketch on XZ plane
sketch19 = body.newObject("Sketcher::SketchObject", "Sketch018")
sketch19.AttachmentSupport = (doc.getObject("XZ_Plane"), [""])
sketch19.MapMode = "FlatFace"
sketch19.AttachmentOffset = App.Placement(App.Vector(0, 0, -17.5), App.Rotation())
sketch19.addGeometry(Part.Circle(App.Vector(-2.7865, -80.7416, 0), App.Vector(0, 0, 1), 4), False)
sketch19.addConstraint([
    Sketcher.Constraint("Diameter", 0, 8.0),
    Sketcher.Constraint("DistanceX", 0, 3, -1, 1, 2.7865),
    Sketcher.Constraint("DistanceY", 0, 3, -1, 1, 80.7416),
])
sketch19.setExpression("Constraints[0]", "Params.sketch19_diameter")
pad12 = body.newObject("PartDesign::Pad", "Pad011")
pad12.Profile = sketch19
pad12.setExpression("Length", "Params.pad12_length")
pad12.Reversed = True

# Sketch on XZ plane
sketch20 = body.newObject("Sketcher::SketchObject", "Sketch019")
sketch20.AttachmentSupport = (doc.getObject("XZ_Plane"), [""])
sketch20.MapMode = "FlatFace"
sketch20.AttachmentOffset = App.Placement(App.Vector(0, 0, -25), App.Rotation())
sketch20.addGeometry(Part.Circle(App.Vector(-2.7865, -80.7416, 0), App.Vector(0, 0, 1), 2.58), False)
sketch20.addConstraint([
    Sketcher.Constraint("Diameter", 0, 5.16),
    Sketcher.Constraint("DistanceX", 0, 3, -1, 1, 2.7865),
    Sketcher.Constraint("DistanceY", 0, 3, -1, 1, 80.7416),
])
sketch20.setExpression("Constraints[0]", "Params.sketch20_diameter")
pocket8 = body.newObject("PartDesign::Pocket", "Pocket007")
pocket8.Profile = sketch20
pocket8.setExpression("Length", "Params.pocket8_length")
pocket8.Reversed = True

# Sketch on XZ plane
sketch21 = body.newObject("Sketcher::SketchObject", "Sketch020")
sketch21.AttachmentSupport = (doc.getObject("XZ_Plane"), [""])
sketch21.MapMode = "FlatFace"
sketch21.AttachmentOffset = App.Placement(App.Vector(0, 0, -20.08), App.Rotation())
sketch21.addGeometry(Part.Circle(App.Vector(-2.7865, -80.7416, 0), App.Vector(0, 0, 1), 2), False)
sketch21.addConstraint([
    Sketcher.Constraint("Diameter", 0, 4.0),
    Sketcher.Constraint("DistanceX", 0, 3, -1, 1, 2.7865),
    Sketcher.Constraint("DistanceY", 0, 3, -1, 1, 80.7416),
])
sketch21.setExpression("Constraints[0]", "Params.sketch21_diameter")
pocket9 = body.newObject("PartDesign::Pocket", "Pocket008")
pocket9.Profile = sketch21
pocket9.Type = "ThroughAll"
pocket9.Reversed = True

doc.recompute()
